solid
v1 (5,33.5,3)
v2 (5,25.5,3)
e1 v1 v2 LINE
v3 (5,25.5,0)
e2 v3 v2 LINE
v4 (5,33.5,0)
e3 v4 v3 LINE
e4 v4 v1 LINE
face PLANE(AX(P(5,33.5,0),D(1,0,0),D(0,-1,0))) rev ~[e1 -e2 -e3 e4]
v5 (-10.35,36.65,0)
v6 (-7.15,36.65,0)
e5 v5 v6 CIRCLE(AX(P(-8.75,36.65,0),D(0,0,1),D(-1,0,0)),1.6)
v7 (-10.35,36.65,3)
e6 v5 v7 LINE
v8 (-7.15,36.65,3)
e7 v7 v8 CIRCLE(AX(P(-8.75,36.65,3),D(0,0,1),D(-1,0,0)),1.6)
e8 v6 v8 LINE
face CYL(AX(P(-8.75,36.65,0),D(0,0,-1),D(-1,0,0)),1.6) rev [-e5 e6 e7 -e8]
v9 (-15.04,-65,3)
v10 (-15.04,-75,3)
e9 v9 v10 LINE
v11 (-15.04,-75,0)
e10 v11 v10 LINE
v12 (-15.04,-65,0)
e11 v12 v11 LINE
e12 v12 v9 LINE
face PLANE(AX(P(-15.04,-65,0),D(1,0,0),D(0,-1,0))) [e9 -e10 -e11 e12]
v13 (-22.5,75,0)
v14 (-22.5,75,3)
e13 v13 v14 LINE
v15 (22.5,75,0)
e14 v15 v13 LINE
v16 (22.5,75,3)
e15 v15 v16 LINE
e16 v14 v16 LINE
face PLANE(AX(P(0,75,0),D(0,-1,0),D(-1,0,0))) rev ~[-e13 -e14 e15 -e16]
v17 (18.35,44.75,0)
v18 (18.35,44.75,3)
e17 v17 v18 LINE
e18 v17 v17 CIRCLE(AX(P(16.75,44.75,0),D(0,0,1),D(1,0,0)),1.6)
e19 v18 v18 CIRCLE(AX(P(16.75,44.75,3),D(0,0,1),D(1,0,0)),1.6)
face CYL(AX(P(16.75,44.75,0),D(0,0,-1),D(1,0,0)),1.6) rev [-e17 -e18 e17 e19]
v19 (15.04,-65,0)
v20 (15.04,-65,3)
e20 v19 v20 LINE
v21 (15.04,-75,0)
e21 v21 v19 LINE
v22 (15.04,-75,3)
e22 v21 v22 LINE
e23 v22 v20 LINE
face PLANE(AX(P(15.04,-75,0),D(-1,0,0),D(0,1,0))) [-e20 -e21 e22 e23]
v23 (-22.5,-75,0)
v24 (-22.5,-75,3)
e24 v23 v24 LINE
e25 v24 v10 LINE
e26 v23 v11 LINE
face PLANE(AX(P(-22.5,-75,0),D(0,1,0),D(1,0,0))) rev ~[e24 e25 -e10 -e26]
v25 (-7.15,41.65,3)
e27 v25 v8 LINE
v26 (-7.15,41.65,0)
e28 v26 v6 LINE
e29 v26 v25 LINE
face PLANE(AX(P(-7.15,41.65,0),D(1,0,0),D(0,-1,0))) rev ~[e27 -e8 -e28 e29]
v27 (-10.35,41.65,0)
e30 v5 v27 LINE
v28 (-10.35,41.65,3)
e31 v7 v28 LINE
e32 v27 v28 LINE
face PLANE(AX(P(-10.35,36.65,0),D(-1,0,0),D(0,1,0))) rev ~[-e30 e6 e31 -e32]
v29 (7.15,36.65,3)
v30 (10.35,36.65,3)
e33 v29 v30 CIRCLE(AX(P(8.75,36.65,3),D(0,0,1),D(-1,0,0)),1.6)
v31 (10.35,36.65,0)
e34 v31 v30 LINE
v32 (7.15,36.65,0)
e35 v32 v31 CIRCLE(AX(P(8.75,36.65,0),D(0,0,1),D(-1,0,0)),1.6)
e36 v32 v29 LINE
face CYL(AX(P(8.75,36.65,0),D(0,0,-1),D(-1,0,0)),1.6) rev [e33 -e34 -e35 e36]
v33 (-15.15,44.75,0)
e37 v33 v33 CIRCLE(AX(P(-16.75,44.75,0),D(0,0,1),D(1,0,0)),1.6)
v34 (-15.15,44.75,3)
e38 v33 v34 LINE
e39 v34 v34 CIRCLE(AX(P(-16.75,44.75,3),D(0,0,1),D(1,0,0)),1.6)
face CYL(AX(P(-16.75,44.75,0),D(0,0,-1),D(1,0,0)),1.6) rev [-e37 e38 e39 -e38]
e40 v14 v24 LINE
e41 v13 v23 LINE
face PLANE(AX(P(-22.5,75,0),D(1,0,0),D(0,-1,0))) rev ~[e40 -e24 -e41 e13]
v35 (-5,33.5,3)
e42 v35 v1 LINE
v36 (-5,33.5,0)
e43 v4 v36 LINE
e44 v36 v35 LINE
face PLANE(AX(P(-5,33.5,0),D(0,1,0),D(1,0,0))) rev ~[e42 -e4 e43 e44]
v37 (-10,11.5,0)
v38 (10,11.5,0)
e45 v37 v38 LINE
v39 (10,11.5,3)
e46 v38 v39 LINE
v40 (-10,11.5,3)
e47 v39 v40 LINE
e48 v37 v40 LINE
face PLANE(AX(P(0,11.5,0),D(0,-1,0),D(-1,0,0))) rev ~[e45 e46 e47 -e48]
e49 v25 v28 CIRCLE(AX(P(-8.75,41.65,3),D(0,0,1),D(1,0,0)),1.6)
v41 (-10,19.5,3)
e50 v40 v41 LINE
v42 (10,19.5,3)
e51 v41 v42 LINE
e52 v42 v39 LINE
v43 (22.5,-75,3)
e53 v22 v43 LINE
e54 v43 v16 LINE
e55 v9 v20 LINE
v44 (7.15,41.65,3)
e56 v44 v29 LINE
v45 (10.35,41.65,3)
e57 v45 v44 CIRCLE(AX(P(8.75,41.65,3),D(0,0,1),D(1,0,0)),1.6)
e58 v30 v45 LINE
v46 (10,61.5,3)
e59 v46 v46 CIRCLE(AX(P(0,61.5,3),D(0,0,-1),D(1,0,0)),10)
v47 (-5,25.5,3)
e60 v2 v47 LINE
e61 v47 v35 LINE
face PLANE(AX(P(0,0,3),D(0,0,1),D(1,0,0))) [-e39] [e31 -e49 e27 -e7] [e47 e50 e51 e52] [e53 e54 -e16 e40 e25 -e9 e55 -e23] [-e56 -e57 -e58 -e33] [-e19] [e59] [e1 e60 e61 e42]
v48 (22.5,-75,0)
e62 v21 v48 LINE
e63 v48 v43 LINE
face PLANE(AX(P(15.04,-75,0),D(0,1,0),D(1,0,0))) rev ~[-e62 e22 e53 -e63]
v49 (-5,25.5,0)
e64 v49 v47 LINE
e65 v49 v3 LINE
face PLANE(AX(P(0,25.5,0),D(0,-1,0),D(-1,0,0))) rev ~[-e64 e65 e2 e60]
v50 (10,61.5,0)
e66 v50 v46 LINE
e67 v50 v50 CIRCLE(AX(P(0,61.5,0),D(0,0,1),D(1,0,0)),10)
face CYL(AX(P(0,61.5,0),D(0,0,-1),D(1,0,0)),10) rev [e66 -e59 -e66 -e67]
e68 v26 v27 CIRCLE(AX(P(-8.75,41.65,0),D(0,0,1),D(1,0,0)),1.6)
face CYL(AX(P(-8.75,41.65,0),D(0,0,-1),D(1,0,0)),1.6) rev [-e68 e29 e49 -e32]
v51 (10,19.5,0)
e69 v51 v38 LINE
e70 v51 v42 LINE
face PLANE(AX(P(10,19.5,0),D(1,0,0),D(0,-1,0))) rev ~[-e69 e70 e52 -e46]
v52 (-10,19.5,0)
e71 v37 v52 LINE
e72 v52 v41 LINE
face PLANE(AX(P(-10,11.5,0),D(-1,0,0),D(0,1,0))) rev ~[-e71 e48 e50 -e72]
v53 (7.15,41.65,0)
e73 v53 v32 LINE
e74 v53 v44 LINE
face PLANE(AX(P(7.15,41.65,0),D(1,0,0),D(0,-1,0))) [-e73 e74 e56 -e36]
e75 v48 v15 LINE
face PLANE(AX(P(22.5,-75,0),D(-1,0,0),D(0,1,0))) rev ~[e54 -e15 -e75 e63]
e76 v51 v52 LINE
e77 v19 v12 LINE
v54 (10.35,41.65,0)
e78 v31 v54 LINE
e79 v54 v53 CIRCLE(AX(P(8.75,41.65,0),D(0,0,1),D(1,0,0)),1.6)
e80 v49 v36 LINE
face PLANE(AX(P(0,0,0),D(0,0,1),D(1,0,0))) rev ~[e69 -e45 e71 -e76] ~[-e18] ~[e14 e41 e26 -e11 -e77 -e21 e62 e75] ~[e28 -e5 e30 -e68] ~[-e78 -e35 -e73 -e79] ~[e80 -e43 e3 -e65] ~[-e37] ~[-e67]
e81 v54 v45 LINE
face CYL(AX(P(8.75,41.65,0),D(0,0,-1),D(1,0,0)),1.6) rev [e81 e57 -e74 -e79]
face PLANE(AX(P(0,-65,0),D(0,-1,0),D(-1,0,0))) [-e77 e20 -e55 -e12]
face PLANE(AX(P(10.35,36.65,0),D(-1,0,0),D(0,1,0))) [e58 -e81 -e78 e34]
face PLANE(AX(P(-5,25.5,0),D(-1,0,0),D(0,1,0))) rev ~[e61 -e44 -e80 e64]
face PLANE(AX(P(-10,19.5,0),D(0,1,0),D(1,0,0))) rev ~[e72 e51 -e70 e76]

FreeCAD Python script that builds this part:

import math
import FreeCAD as App
import Part
import Sketcher

V = App.Vector
Q = App.Units.Quantity

doc = App.newDocument("Part")
body = doc.addObject("PartDesign::Body", "Body")

sketch1 = body.newObject("Sketcher::SketchObject", "Sketch")
sketch1.AttachmentSupport = (doc.getObject("XY_Plane"), [""])
sketch1.MapMode = "FlatFace"
sketch1.addGeometry(Part.LineSegment(V(-22.5, 75, 0), V(-22.5, -75, 0)), False)
sketch1.addGeometry(Part.LineSegment(V(-22.5, -75, 0), V(-15, -75, 0)), False)
sketch1.addGeometry(Part.LineSegment(V(-15, -75, 0), V(-15, -65, 0)), False)
sketch1.addGeometry(Part.LineSegment(V(-15, -65, 0), V(15, -65, 0)), False)
sketch1.addGeometry(Part.LineSegment(V(15, -65, 0), V(15, -75, 0)), False)
sketch1.addGeometry(Part.LineSegment(V(15, -75, 0), V(22.5, -75, 0)), False)
sketch1.addGeometry(Part.LineSegment(V(22.5, -75, 0), V(22.5, 75, 0)), False)
sketch1.addGeometry(Part.LineSegment(V(22.5, 75, 0), V(-22.5, 75, 0)), False)
sketch1.addGeometry(Part.Circle(V(0, 61.5, 0), V(0, 0, 1), 10), False)
sketch1.addGeometry(Part.LineSegment(V(-5, 33.5, 0), V(5, 33.5, 0)), False)
sketch1.addGeometry(Part.LineSegment(V(5, 33.5, 0), V(5, 25.5, 0)), False)
sketch1.addGeometry(Part.LineSegment(V(5, 25.5, 0), V(-5, 25.5, 0)), False)
sketch1.addGeometry(Part.LineSegment(V(-5, 25.5, 0), V(-5, 33.5, 0)), False)
sketch1.addGeometry(Part.LineSegment(V(-10, 19.5, 0), V(10, 19.5, 0)), False)
sketch1.addGeometry(Part.LineSegment(V(10, 19.5, 0), V(10, 11.5, 0)), False)
sketch1.addGeometry(Part.LineSegment(V(10, 11.5, 0), V(-10, 11.5, 0)), False)
sketch1.addGeometry(Part.LineSegment(V(-10, 11.5, 0), V(-10, 19.5, 0)), False)
sketch1.addGeometry(Part.Circle(V(-16.8, 44.8, 0), V(0, 0, 1), 1.6), False)
sketch1.addGeometry(Part.ArcOfCircle(Part.Circle(V(-8.8, 41.6, 0), V(0, 0, 1), 1.6), math.radians(0), math.radians(180)), False)
sketch1.addGeometry(Part.LineSegment(V(-7.2, 41.6, 0), V(-7.2, 36.6, 0)), False)
sketch1.addGeometry(Part.ArcOfCircle(Part.Circle(V(-8.8, 36.6, 0), V(0, 0, 1), 1.6), math.radians(180), math.radians(360)), False)
sketch1.addGeometry(Part.LineSegment(V(-10.3, 36.6, 0), V(-10.3, 41.6, 0)), False)
sketch1.addGeometry(Part.LineSegment(V(7.2, 36.6, 0), V(7.2, 41.6, 0)), False)
sketch1.addGeometry(Part.ArcOfCircle(Part.Circle(V(8.8, 41.6, 0), V(0, 0, 1), 1.6), math.radians(0), math.radians(180)), False)
sketch1.addGeometry(Part.LineSegment(V(10.3, 41.6, 0), V(10.3, 36.6, 0)), False)
sketch1.addGeometry(Part.ArcOfCircle(Part.Circle(V(8.8, 36.6, 0), V(0, 0, 1), 1.6), math.radians(180), math.radians(360)), False)
sketch1.addGeometry(Part.Circle(V(16.8, 44.8, 0), V(0, 0, 1), 1.6), False)
sketch1.addConstraint(Sketcher.Constraint("Coincident", 0, 2, 1, 1))
sketch1.addConstraint(Sketcher.Constraint("Coincident", 1, 2, 2, 1))
sketch1.addConstraint(Sketcher.Constraint("Coincident", 2, 2, 3, 1))
sketch1.addConstraint(Sketcher.Constraint("Coincident", 3, 2, 4, 1))
sketch1.addConstraint(Sketcher.Constraint("Coincident", 4, 2, 5, 1))
sketch1.addConstraint(Sketcher.Constraint("Coincident", 5, 2, 6, 1))
sketch1.addConstraint(Sketcher.Constraint("Coincident", 6, 2, 7, 1))
sketch1.addConstraint(Sketcher.Constraint("Coincident", 7, 2, 0, 1))
sketch1.addConstraint(Sketcher.Constraint("Coincident", 9, 2, 10, 1))
sketch1.addConstraint(Sketcher.Constraint("Coincident", 10, 2, 11, 1))
sketch1.addConstraint(Sketcher.Constraint("Coincident", 11, 2, 12, 1))
sketch1.addConstraint(Sketcher.Constraint("Coincident", 12, 2, 9, 1))
sketch1.addConstraint(Sketcher.Constraint("Coincident", 13, 2, 14, 1))
sketch1.addConstraint(Sketcher.Constraint("Coincident", 14, 2, 15, 1))
sketch1.addConstraint(Sketcher.Constraint("Coincident", 15, 2, 16, 1))
sketch1.addConstraint(Sketcher.Constraint("Coincident", 16, 2, 13, 1))
sketch1.addConstraint(Sketcher.Constraint("Tangent", 18, 1, 19, 1))
sketch1.addConstraint(Sketcher.Constraint("Tangent", 19, 2, 20, 2))
sketch1.addConstraint(Sketcher.Constraint("Tangent", 20, 1, 21, 1))
sketch1.addConstraint(Sketcher.Constraint("Tangent", 21, 2, 18, 2))
sketch1.addConstraint(Sketcher.Constraint("Tangent", 22, 2, 23, 2))
sketch1.addConstraint(Sketcher.Constraint("Tangent", 23, 1, 24, 1))
sketch1.addConstraint(Sketcher.Constraint("Tangent", 24, 2, 25, 2))
sketch1.addConstraint(Sketcher.Constraint("Tangent", 25, 1, 22, 1))
sketch1.addConstraint(Sketcher.Constraint("Vertical", 0))
sketch1.addConstraint(Sketcher.Constraint("Horizontal", 1))
sketch1.addConstraint(Sketcher.Constraint("Vertical", 2))
sketch1.addConstraint(Sketcher.Constraint("Horizontal", 3))
sketch1.addConstraint(Sketcher.Constraint("Vertical", 4))
sketch1.addConstraint(Sketcher.Constraint("Horizontal", 5))
sketch1.addConstraint(Sketcher.Constraint("Vertical", 6))
sketch1.addConstraint(Sketcher.Constraint("Horizontal", 7))
sketch1.addConstraint(Sketcher.Constraint("Horizontal", 9))
sketch1.addConstraint(Sketcher.Constraint("Vertical", 10))
sketch1.addConstraint(Sketcher.Constraint("Horizontal", 11))
sketch1.addConstraint(Sketcher.Constraint("Vertical", 12))
sketch1.addConstraint(Sketcher.Constraint("Horizontal", 13))
sketch1.addConstraint(Sketcher.Constraint("Vertical", 14))
sketch1.addConstraint(Sketcher.Constraint("Horizontal", 15))
sketch1.addConstraint(Sketcher.Constraint("Vertical", 16))
sketch1.addConstraint(Sketcher.Constraint("Vertical", 19))
sketch1.addConstraint(Sketcher.Constraint("Vertical", 21))
sketch1.addConstraint(Sketcher.Constraint("Vertical", 22))
sketch1.addConstraint(Sketcher.Constraint("Vertical", 24))
sketch1.addConstraint(Sketcher.Constraint("Equal", 17, 18))
sketch1.addConstraint(Sketcher.Constraint("Equal", 20, 23))
sketch1.addConstraint(Sketcher.Constraint("Equal", 25, 26))
sketch1.addConstraint(Sketcher.Constraint("Symmetric", 0, 2, 6, 2, -1, 1))
sketch1.addConstraint(Sketcher.Constraint("Symmetric", 18, 3, 23, 3, -2))
sketch1.addConstraint(Sketcher.Constraint("Symmetric", 17, 3, 26, 3, -2))
sketch1.addConstraint(Sketcher.Constraint("Symmetric", 1, 2, 4, 2, -2))
sketch1.addConstraint(Sketcher.Constraint("PointOnObject", 8, 3, -2))
sketch1.addConstraint(Sketcher.Constraint("Horizontal", 20, 3, 25, 3))
sketch1.addConstraint(Sketcher.Constraint("Equal", 11, 2))
sketch1.addConstraint(Sketcher.Constraint("Equal", 12, 14))
sketch1.addConstraint(Sketcher.Constraint("Diameter", 8, Q("20 mm")))
sketch1.addConstraint(Sketcher.Constraint("Diameter", 17, Q("3.2 mm")))
sketch1.addConstraint(Sketcher.Constraint("DistanceX", 7, 2, 7, 1, Q("45 mm")))
sketch1.addConstraint(Sketcher.Constraint("DistanceX", 9, 1, 9, 2, Q("10 mm")))
sketch1.addConstraint(Sketcher.Constraint("DistanceX", 13, 1, 13, 2, Q("20 mm")))
sketch1.addConstraint(Sketcher.Constraint("DistanceY", 0, 2, 0, 1, Q("150 mm")))
sketch1.addConstraint(Sketcher.Constraint("DistanceY", 10, 2, 10, 1, Q("8 mm")))
sketch1.addConstraint(Sketcher.Constraint("DistanceY", 19, 2, 19, 1, Q("5 mm")))
sketch1.addConstraint(Sketcher.Constraint("DistanceX", -1, 1, 9, 2, Q("5 mm")))
sketch1.addConstraint(Sketcher.Constraint("DistanceX", -1, 1, 13, 2, Q("10 mm")))
sketch1.addConstraint(Sketcher.Constraint("DistanceX", 17, 3, 18, 3, Q("8 mm")))
sketch1.addConstraint(Sketcher.Constraint("DistanceX", 3, 1, 3, 2, Q("30.08 mm")))
sketch1.addConstraint(Sketcher.Constraint("DistanceY", -1, 1, 9, 2, Q("33.5 mm")))
sketch1.addConstraint(Sketcher.Constraint("DistanceX", 18, 3, 23, 3, Q("17.5 mm")))
sketch1.addConstraint(Sketcher.Constraint("DistanceY", 0, 2, 18, 3, Q("116.65 mm")))
sketch1.addConstraint(Sketcher.Constraint("DistanceY", 0, 2, 17, 3, Q("119.75 mm")))
sketch1.addConstraint(Sketcher.Constraint("DistanceY", 13, 2, 10, 2, Q("6 mm")))
sketch1.addConstraint(Sketcher.Constraint("DistanceY", -1, 1, 8, 3, Q("61.5 mm")))
pad1 = body.newObject("PartDesign::Pad", "Pad")
pad1.Profile = sketch1
pad1.Length = 3

doc.recompute()
